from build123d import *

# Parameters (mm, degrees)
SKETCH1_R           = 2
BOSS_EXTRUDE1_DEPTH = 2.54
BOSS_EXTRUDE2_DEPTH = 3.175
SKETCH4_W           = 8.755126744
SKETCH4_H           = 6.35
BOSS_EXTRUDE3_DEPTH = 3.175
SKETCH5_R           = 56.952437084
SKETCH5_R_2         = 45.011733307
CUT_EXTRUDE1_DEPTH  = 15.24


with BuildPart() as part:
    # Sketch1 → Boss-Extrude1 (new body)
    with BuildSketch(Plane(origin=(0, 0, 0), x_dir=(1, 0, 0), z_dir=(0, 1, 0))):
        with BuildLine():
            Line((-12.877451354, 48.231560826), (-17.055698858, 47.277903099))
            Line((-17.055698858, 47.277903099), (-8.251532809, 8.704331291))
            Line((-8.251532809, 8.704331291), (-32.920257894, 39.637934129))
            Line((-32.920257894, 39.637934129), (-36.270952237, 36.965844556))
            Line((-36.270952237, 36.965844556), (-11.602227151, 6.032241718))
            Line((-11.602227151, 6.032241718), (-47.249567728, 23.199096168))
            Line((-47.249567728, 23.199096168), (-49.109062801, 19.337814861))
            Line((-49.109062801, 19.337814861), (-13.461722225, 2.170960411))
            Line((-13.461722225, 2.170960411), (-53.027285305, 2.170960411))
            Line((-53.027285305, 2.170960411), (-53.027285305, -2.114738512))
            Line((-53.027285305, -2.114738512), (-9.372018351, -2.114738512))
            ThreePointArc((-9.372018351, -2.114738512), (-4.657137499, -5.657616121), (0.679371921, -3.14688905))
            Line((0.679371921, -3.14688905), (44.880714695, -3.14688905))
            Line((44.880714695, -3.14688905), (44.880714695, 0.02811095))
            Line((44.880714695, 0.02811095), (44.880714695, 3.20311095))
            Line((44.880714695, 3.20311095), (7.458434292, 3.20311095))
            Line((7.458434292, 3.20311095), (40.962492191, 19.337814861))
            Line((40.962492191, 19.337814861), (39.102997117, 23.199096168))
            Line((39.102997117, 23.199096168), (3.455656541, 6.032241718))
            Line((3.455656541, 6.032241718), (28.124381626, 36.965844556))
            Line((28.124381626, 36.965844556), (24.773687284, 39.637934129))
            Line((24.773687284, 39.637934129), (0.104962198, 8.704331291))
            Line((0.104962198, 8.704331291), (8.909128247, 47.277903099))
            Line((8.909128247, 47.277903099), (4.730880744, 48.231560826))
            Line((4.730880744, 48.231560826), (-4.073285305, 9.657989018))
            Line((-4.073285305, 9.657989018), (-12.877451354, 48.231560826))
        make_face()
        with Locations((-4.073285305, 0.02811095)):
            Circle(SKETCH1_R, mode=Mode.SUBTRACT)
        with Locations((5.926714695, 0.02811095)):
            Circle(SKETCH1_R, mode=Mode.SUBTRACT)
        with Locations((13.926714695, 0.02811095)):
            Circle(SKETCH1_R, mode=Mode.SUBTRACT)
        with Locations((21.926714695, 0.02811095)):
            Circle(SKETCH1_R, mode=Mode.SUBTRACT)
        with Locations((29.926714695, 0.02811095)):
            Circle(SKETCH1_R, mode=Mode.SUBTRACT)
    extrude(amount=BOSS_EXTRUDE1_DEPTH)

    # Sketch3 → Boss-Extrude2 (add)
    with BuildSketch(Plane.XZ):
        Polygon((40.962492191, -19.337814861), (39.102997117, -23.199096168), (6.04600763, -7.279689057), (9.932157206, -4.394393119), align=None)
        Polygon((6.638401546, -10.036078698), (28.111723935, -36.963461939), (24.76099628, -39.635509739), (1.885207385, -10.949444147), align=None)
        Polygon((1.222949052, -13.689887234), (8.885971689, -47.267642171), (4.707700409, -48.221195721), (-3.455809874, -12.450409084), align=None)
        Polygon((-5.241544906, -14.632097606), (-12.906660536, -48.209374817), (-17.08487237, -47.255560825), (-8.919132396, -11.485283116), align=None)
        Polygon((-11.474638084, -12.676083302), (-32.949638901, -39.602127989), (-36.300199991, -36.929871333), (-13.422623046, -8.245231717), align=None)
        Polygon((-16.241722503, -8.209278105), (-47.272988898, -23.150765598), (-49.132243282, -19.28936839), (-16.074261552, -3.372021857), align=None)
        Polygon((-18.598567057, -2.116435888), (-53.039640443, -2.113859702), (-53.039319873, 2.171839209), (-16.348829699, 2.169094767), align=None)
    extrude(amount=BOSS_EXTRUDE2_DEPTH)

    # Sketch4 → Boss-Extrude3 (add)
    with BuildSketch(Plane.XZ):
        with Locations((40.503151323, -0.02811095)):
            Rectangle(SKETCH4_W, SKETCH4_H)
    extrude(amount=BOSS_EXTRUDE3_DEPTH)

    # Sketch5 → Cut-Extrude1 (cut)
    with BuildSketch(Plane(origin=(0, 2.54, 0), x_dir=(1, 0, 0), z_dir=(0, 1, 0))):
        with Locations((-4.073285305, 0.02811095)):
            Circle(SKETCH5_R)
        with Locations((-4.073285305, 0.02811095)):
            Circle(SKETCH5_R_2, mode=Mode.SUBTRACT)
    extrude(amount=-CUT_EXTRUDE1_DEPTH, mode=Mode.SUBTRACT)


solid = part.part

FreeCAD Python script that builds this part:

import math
import FreeCAD as App
import Part
import Sketcher
Q = App.Units.Quantity

doc = App.newDocument("Part")
body = doc.addObject("PartDesign::Body", "Body")

# Sketch on XZ plane
sketch1 = body.newObject("Sketcher::SketchObject", "Sketch")
sketch1.AttachmentSupport = (doc.getObject("XZ_Plane"), [""])
sketch1.MapMode = "FlatFace"
sketch1.addGeometry(Part.LineSegment(App.Vector(-12.877451, -48.231561, 0), App.Vector(-17.055699, -47.277903, 0)), False)
sketch1.addGeometry(Part.LineSegment(App.Vector(-17.055699, -47.277903, 0), App.Vector(-8.251533, -8.704331, 0)), False)
sketch1.addGeometry(Part.LineSegment(App.Vector(-8.251533, -8.704331, 0), App.Vector(-32.920258, -39.637934, 0)), False)
sketch1.addGeometry(Part.LineSegment(App.Vector(-32.920258, -39.637934, 0), App.Vector(-36.270952, -36.965845, 0)), False)
sketch1.addGeometry(Part.LineSegment(App.Vector(-36.270952, -36.965845, 0), App.Vector(-11.602227, -6.032242, 0)), False)
sketch1.addGeometry(Part.LineSegment(App.Vector(-11.602227, -6.032242, 0), App.Vector(-47.249568, -23.199096, 0)), False)
sketch1.addGeometry(Part.LineSegment(App.Vector(-47.249568, -23.199096, 0), App.Vector(-49.109063, -19.337815, 0)), False)
sketch1.addGeometry(Part.LineSegment(App.Vector(-49.109063, -19.337815, 0), App.Vector(-13.461722, -2.17096, 0)), False)
sketch1.addGeometry(Part.LineSegment(App.Vector(-13.461722, -2.17096, 0), App.Vector(-53.027285, -2.17096, 0)), False)
sketch1.addGeometry(Part.LineSegment(App.Vector(-53.027285, -2.17096, 0), App.Vector(-53.027285, 2.114739, 0)), False)
sketch1.addGeometry(Part.LineSegment(App.Vector(-53.027285, 2.114739, 0), App.Vector(-9.372018, 2.114739, 0)), False)
sketch1.addGeometry(Part.ArcOfCircle(Part.Circle(App.Vector(-4.073285, -0.028111, 0), App.Vector(0, 0, 1), 5.715626), math.radians(33.744799), math.radians(157.981203)), False)
sketch1.addGeometry(Part.LineSegment(App.Vector(0.679372, 3.146889, 0), App.Vector(44.880715, 3.146889, 0)), False)
sketch1.addGeometry(Part.LineSegment(App.Vector(44.880715, 3.146889, 0), App.Vector(44.880715, -3.203111, 0)), False)
sketch1.addGeometry(Part.LineSegment(App.Vector(44.880715, -3.203111, 0), App.Vector(7.458434, -3.203111, 0)), False)
sketch1.addGeometry(Part.LineSegment(App.Vector(7.458434, -3.203111, 0), App.Vector(40.962492, -19.337815, 0)), False)
sketch1.addGeometry(Part.LineSegment(App.Vector(40.962492, -19.337815, 0), App.Vector(39.102997, -23.199096, 0)), False)
sketch1.addGeometry(Part.LineSegment(App.Vector(39.102997, -23.199096, 0), App.Vector(3.455657, -6.032242, 0)), False)
sketch1.addGeometry(Part.LineSegment(App.Vector(3.455657, -6.032242, 0), App.Vector(28.124382, -36.965845, 0)), False)
sketch1.addGeometry(Part.LineSegment(App.Vector(28.124382, -36.965845, 0), App.Vector(24.773687, -39.637934, 0)), False)
sketch1.addGeometry(Part.LineSegment(App.Vector(24.773687, -39.637934, 0), App.Vector(0.104962, -8.704331, 0)), False)
sketch1.addGeometry(Part.LineSegment(App.Vector(0.104962, -8.704331, 0), App.Vector(8.909128, -47.277903, 0)), False)
sketch1.addGeometry(Part.LineSegment(App.Vector(8.909128, -47.277903, 0), App.Vector(4.730881, -48.231561, 0)), False)
sketch1.addGeometry(Part.LineSegment(App.Vector(4.730881, -48.231561, 0), App.Vector(-4.073285, -9.657989, 0)), False)
sketch1.addGeometry(Part.LineSegment(App.Vector(-4.073285, -9.657989, 0), App.Vector(-12.877451, -48.231561, 0)), False)
sketch1.addGeometry(Part.Circle(App.Vector(-4.073285, -0.028111, 0), App.Vector(0, 0, 1), 2), False)
sketch1.addGeometry(Part.Circle(App.Vector(5.926715, -0.028111, 0), App.Vector(0, 0, 1), 2), False)
sketch1.addGeometry(Part.Circle(App.Vector(13.926715, -0.028111, 0), App.Vector(0, 0, 1), 2), False)
sketch1.addGeometry(Part.Circle(App.Vector(21.926715, -0.028111, 0), App.Vector(0, 0, 1), 2), False)
sketch1.addGeometry(Part.Circle(App.Vector(29.926715, -0.028111, 0), App.Vector(0, 0, 1), 2), False)
sketch1.addConstraint(Sketcher.Constraint("Coincident", 0, 2, 1, 1))
sketch1.addConstraint(Sketcher.Constraint("Coincident", 1, 2, 2, 1))
sketch1.addConstraint(Sketcher.Constraint("Coincident", 2, 2, 3, 1))
sketch1.addConstraint(Sketcher.Constraint("Coincident", 3, 2, 4, 1))
sketch1.addConstraint(Sketcher.Constraint("Coincident", 4, 2, 5, 1))
sketch1.addConstraint(Sketcher.Constraint("Coincident", 5, 2, 6, 1))
sketch1.addConstraint(Sketcher.Constraint("Coincident", 6, 2, 7, 1))
sketch1.addConstraint(Sketcher.Constraint("Coincident", 7, 2, 8, 1))
sketch1.addConstraint(Sketcher.Constraint("Coincident", 8, 2, 9, 1))
sketch1.addConstraint(Sketcher.Constraint("Coincident", 9, 2, 10, 1))
sketch1.addConstraint(Sketcher.Constraint("Coincident", 10, 2, 11, 2))
sketch1.addConstraint(Sketcher.Constraint("Coincident", 11, 1, 12, 1))
sketch1.addConstraint(Sketcher.Constraint("Coincident", 12, 2, 13, 1))
sketch1.addConstraint(Sketcher.Constraint("Coincident", 13, 2, 14, 1))
sketch1.addConstraint(Sketcher.Constraint("Coincident", 14, 2, 15, 1))
sketch1.addConstraint(Sketcher.Constraint("Coincident", 15, 2, 16, 1))
sketch1.addConstraint(Sketcher.Constraint("Coincident", 16, 2, 17, 1))
sketch1.addConstraint(Sketcher.Constraint("Coincident", 17, 2, 18, 1))
sketch1.addConstraint(Sketcher.Constraint("Coincident", 18, 2, 19, 1))
sketch1.addConstraint(Sketcher.Constraint("Coincident", 19, 2, 20, 1))
sketch1.addConstraint(Sketcher.Constraint("Coincident", 20, 2, 21, 1))
sketch1.addConstraint(Sketcher.Constraint("Coincident", 21, 2, 22, 1))
sketch1.addConstraint(Sketcher.Constraint("Coincident", 22, 2, 23, 1))
sketch1.addConstraint(Sketcher.Constraint("Coincident", 23, 2, 24, 1))
sketch1.addConstraint(Sketcher.Constraint("Coincident", 24, 2, 0, 1))
sketch1.addConstraint(Sketcher.Constraint("Horizontal", 8))
sketch1.addConstraint(Sketcher.Constraint("Vertical", 9))
sketch1.addConstraint(Sketcher.Constraint("Horizontal", 10))
sketch1.addConstraint(Sketcher.Constraint("Horizontal", 12))
sketch1.addConstraint(Sketcher.Constraint("Vertical", 13))
sketch1.addConstraint(Sketcher.Constraint("Horizontal", 14))
sketch1.addConstraint(Sketcher.Constraint("Coincident", 25, 3, 11, 3))
sketch1.addConstraint(Sketcher.Constraint("Equal", 25, 26))
sketch1.addConstraint(Sketcher.Constraint("Equal", 26, 27))
sketch1.addConstraint(Sketcher.Constraint("Equal", 27, 28))
sketch1.addConstraint(Sketcher.Constraint("Equal", 28, 29))
sketch1.addConstraint(Sketcher.Constraint("Perpendicular", 0, 1))
sketch1.addConstraint(Sketcher.Constraint("Perpendicular", 2, 3))
sketch1.addConstraint(Sketcher.Constraint("Perpendicular", 3, 4))
sketch1.addConstraint(Sketcher.Constraint("Perpendicular", 5, 6))
sketch1.addConstraint(Sketcher.Constraint("Perpendicular", 6, 7))
sketch1.addConstraint(Sketcher.Constraint("Perpendicular", 15, 16))
sketch1.addConstraint(Sketcher.Constraint("Perpendicular", 16, 17))
sketch1.addConstraint(Sketcher.Constraint("Perpendicular", 18, 19))
sketch1.addConstraint(Sketcher.Constraint("Perpendicular", 19, 20))
sketch1.addConstraint(Sketcher.Constraint("Perpendicular", 21, 22))
sketch1.addConstraint(Sketcher.Constraint("Perpendicular", 22, 23))
sketch1.addConstraint(Sketcher.Constraint("Parallel", 1, 24))
sketch1.addConstraint(Sketcher.Constraint("Horizontal", 25, 3, 26, 3))
sketch1.addConstraint(Sketcher.Constraint("Horizontal", 26, 3, 27, 3))
sketch1.addConstraint(Sketcher.Constraint("Horizontal", 27, 3, 28, 3))
sketch1.addConstraint(Sketcher.Constraint("Horizontal", 28, 3, 29, 3))
sketch1.addConstraint(Sketcher.Constraint("Horizontal", 6, 2, 15, 2))
sketch1.addConstraint(Sketcher.Constraint("Horizontal", 5, 2, 16, 2))
sketch1.addConstraint(Sketcher.Constraint("Horizontal", 4, 2, 17, 2))
sketch1.addConstraint(Sketcher.Constraint("Horizontal", 3, 2, 18, 2))
sketch1.addConstraint(Sketcher.Constraint("Horizontal", 2, 2, 19, 2))
sketch1.addConstraint(Sketcher.Constraint("Horizontal", 1, 2, 20, 2))
sketch1.addConstraint(Sketcher.Constraint("Horizontal", 0, 2, 21, 2))
sketch1.addConstraint(Sketcher.Constraint("Horizontal", 22, 2, 24, 2))
sketch1.addConstraint(Sketcher.Constraint("Vertical", 25, 3, 23, 2))
sketch1.addConstraint(Sketcher.Constraint("Equal", 1, 2))
sketch1.addConstraint(Sketcher.Constraint("Equal", 0, 3))
sketch1.addConstraint(Sketcher.Constraint("Equal", 2, 4))
sketch1.addConstraint(Sketcher.Constraint("Equal", 4, 5))
sketch1.addConstraint(Sketcher.Constraint("Equal", 3, 6))
sketch1.addConstraint(Sketcher.Constraint("Equal", 5, 7))
sketch1.addConstraint(Sketcher.Constraint("Equal", 6, 16))
sketch1.addConstraint(Sketcher.Constraint("Equal", 17, 18))
sketch1.addConstraint(Sketcher.Constraint("Equal", 20, 21))
sketch1.addConstraint(Sketcher.Constraint("Equal", 21, 23))
sketch1.addConstraint(Sketcher.Constraint("DistanceY", 13, 2, 13, 1, Q("0.25 in")))
sketch1.addConstraint(Sketcher.Constraint("Diameter", 25, 4.0))
sketch1.addConstraint(Sketcher.Constraint("DistanceY", 11, 3, 11, 1, Q("0.125 in")))
sketch1.addConstraint(Sketcher.Constraint("DistanceY", 9, 1, 9, 2, 4.285699))
sketch1.addConstraint(Sketcher.Constraint("Radius", 11, 5.715626))
sketch1.addConstraint(Sketcher.Constraint("Distance", 0, 4.285699))
sketch1.addConstraint(Sketcher.Constraint("Distance", 15, 37.186699))
sketch1.addConstraint(Sketcher.Constraint("DistanceX", 14, 2, 14, 1, 37.42228))
sketch1.addConstraint(Sketcher.Constraint("DistanceX", 0, 2, -1, 1, 17.055699))
sketch1.addConstraint(Sketcher.Constraint("DistanceX", 11, 3, 26, 3, 10.0))
sketch1.addConstraint(Sketcher.Constraint("DistanceX", 26, 3, 27, 3, 8.0))
sketch1.addConstraint(Sketcher.Constraint("DistanceX", 27, 3, 28, 3, 8.0))
sketch1.addConstraint(Sketcher.Constraint("DistanceX", 28, 3, 29, 3, 8.0))
sketch1.addConstraint(Sketcher.Constraint("DistanceX", 29, 3, 12, 2, 14.954))
sketch1.addConstraint(Sketcher.Constraint("DistanceX", 22, 2, 18, 2, 23.393501))
sketch1.addConstraint(Sketcher.Constraint("DistanceX", 8, 2, 8, 1, 39.565563))
sketch1.addConstraint(Sketcher.Constraint("DistanceX", 10, 1, 10, 2, 43.655267))
sketch1.addConstraint(Sketcher.Constraint("DistanceY", 11, 3, -1, 1, 0.028111))
sketch1.addConstraint(Sketcher.Constraint("DistanceY", 4, 2, -1, 1, 6.032242))
pad1 = body.newObject("PartDesign::Pad", "Pad")
pad1.Profile = sketch1
pad1.Length = Q("0.1 in")
pad1.Reversed = True

# Sketch on XZ plane
sketch2 = body.newObject("Sketcher::SketchObject", "Sketch001")
sketch2.AttachmentSupport = (doc.getObject("XZ_Plane"), [""])
sketch2.MapMode = "FlatFace"
sketch2.addGeometry(Part.LineSegment(App.Vector(39.102997, -23.199096, 0), App.Vector(40.962492, -19.337815, 0)), False)
sketch2.addGeometry(Part.LineSegment(App.Vector(40.962492, -19.337815, 0), App.Vector(9.932157, -4.394393, 0)), False)
sketch2.addGeometry(Part.LineSegment(App.Vector(9.932157, -4.394393, 0), App.Vector(6.046008, -7.279689, 0)), False)
sketch2.addGeometry(Part.LineSegment(App.Vector(6.046008, -7.279689, 0), App.Vector(39.102997, -23.199096, 0)), False)
sketch2.addGeometry(Part.LineSegment(App.Vector(28.111724, -36.963462, 0), App.Vector(6.638402, -10.036079, 0)), False)
sketch2.addGeometry(Part.LineSegment(App.Vector(6.638402, -10.036079, 0), App.Vector(1.885207, -10.949444, 0)), False)
sketch2.addGeometry(Part.LineSegment(App.Vector(1.885207, -10.949444, 0), App.Vector(24.760996, -39.63551, 0)), False)
sketch2.addGeometry(Part.LineSegment(App.Vector(24.760996, -39.63551, 0), App.Vector(28.111724, -36.963462, 0)), False)
sketch2.addGeometry(Part.LineSegment(App.Vector(8.885972, -47.267642, 0), App.Vector(1.222949, -13.689887, 0)), False)
sketch2.addGeometry(Part.LineSegment(App.Vector(1.222949, -13.689887, 0), App.Vector(-3.45581, -12.450409, 0)), False)
sketch2.addGeometry(Part.LineSegment(App.Vector(-3.45581, -12.450409, 0), App.Vector(4.7077, -48.221196, 0)), False)
sketch2.addGeometry(Part.LineSegment(App.Vector(4.7077, -48.221196, 0), App.Vector(8.885972, -47.267642, 0)), False)
sketch2.addGeometry(Part.LineSegment(App.Vector(-12.906661, -48.209375, 0), App.Vector(-5.241545, -14.632098, 0)), False)
sketch2.addGeometry(Part.LineSegment(App.Vector(-5.241545, -14.632098, 0), App.Vector(-8.919132, -11.485283, 0)), False)
sketch2.addGeometry(Part.LineSegment(App.Vector(-8.919132, -11.485283, 0), App.Vector(-17.084872, -47.255561, 0)), False)
sketch2.addGeometry(Part.LineSegment(App.Vector(-17.084872, -47.255561, 0), App.Vector(-12.906661, -48.209375, 0)), False)
sketch2.addGeometry(Part.LineSegment(App.Vector(-32.949639, -39.602128, 0), App.Vector(-11.474638, -12.676083, 0)), False)
sketch2.addGeometry(Part.LineSegment(App.Vector(-11.474638, -12.676083, 0), App.Vector(-13.422623, -8.245232, 0)), False)
sketch2.addGeometry(Part.LineSegment(App.Vector(-13.422623, -8.245232, 0), App.Vector(-36.3002, -36.929871, 0)), False)
sketch2.addGeometry(Part.LineSegment(App.Vector(-36.3002, -36.929871, 0), App.Vector(-32.949639, -39.602128, 0)), False)
sketch2.addGeometry(Part.LineSegment(App.Vector(-47.272989, -23.150766, 0), App.Vector(-16.241723, -8.209278, 0)), False)
sketch2.addGeometry(Part.LineSegment(App.Vector(-16.241723, -8.209278, 0), App.Vector(-16.074262, -3.372022, 0)), False)
sketch2.addGeometry(Part.LineSegment(App.Vector(-16.074262, -3.372022, 0), App.Vector(-49.132243, -19.289368, 0)), False)
sketch2.addGeometry(Part.LineSegment(App.Vector(-49.132243, -19.289368, 0), App.Vector(-47.272989, -23.150766, 0)), False)
sketch2.addGeometry(Part.LineSegment(App.Vector(-53.03964, -2.11386, 0), App.Vector(-18.598567, -2.116436, 0)), False)
sketch2.addGeometry(Part.LineSegment(App.Vector(-18.598567, -2.116436, 0), App.Vector(-16.34883, 2.169095, 0)), False)
sketch2.addGeometry(Part.LineSegment(App.Vector(-16.34883, 2.169095, 0), App.Vector(-53.03932, 2.171839, 0)), False)
sketch2.addGeometry(Part.LineSegment(App.Vector(-53.03932, 2.171839, 0), App.Vector(-53.03964, -2.11386, 0)), False)
sketch2.addConstraint(Sketcher.Constraint("Coincident", 0, 2, 1, 1))
sketch2.addConstraint(Sketcher.Constraint("Coincident", 1, 2, 2, 1))
sketch2.addConstraint(Sketcher.Constraint("Coincident", 2, 2, 3, 1))
sketch2.addConstraint(Sketcher.Constraint("Coincident", 3, 2, 0, 1))
sketch2.addConstraint(Sketcher.Constraint("Coincident", 4, 2, 5, 1))
sketch2.addConstraint(Sketcher.Constraint("Coincident", 5, 2, 6, 1))
sketch2.addConstraint(Sketcher.Constraint("Coincident", 6, 2, 7, 1))
sketch2.addConstraint(Sketcher.Constraint("Coincident", 7, 2, 4, 1))
sketch2.addConstraint(Sketcher.Constraint("Coincident", 8, 2, 9, 1))
sketch2.addConstraint(Sketcher.Constraint("Coincident", 9, 2, 10, 1))
sketch2.addConstraint(Sketcher.Constraint("Coincident", 10, 2, 11, 1))
sketch2.addConstraint(Sketcher.Constraint("Coincident", 11, 2, 8, 1))
sketch2.addConstraint(Sketcher.Constraint("Coincident", 12, 2, 13, 1))
sketch2.addConstraint(Sketcher.Constraint("Coincident", 13, 2, 14, 1))
sketch2.addConstraint(Sketcher.Constraint("Coincident", 14, 2, 15, 1))
sketch2.addConstraint(Sketcher.Constraint("Coincident", 15, 2, 12, 1))
sketch2.addConstraint(Sketcher.Constraint("Coincident", 16, 2, 17, 1))
sketch2.addConstraint(Sketcher.Constraint("Coincident", 17, 2, 18, 1))
sketch2.addConstraint(Sketcher.Constraint("Coincident", 18, 2, 19, 1))
sketch2.addConstraint(Sketcher.Constraint("Coincident", 19, 2, 16, 1))
sketch2.addConstraint(Sketcher.Constraint("Coincident", 20, 2, 21, 1))
sketch2.addConstraint(Sketcher.Constraint("Coincident", 21, 2, 22, 1))
sketch2.addConstraint(Sketcher.Constraint("Coincident", 22, 2, 23, 1))
sketch2.addConstraint(Sketcher.Constraint("Coincident", 23, 2, 20, 1))
sketch2.addConstraint(Sketcher.Constraint("Coincident", 24, 2, 25, 1))
sketch2.addConstraint(Sketcher.Constraint("Coincident", 25, 2, 26, 1))
sketch2.addConstraint(Sketcher.Constraint("Coincident", 26, 2, 27, 1))
sketch2.addConstraint(Sketcher.Constraint("Coincident", 27, 2, 24, 1))
sketch2.addConstraint(Sketcher.Constraint("Perpendicular", 0, 1))
sketch2.addConstraint(Sketcher.Constraint("Parallel", 1, 3))
sketch2.addConstraint(Sketcher.Constraint("Parallel", 4, 6))
sketch2.addConstraint(Sketcher.Constraint("Perpendicular", 6, 7))
sketch2.addConstraint(Sketcher.Constraint("Parallel", 8, 10))
sketch2.addConstraint(Sketcher.Constraint("Perpendicular", 10, 11))
sketch2.addConstraint(Sketcher.Constraint("Parallel", 12, 14))
sketch2.addConstraint(Sketcher.Constraint("Perpendicular", 14, 15))
sketch2.addConstraint(Sketcher.Constraint("Parallel", 16, 18))
sketch2.addConstraint(Sketcher.Constraint("Perpendicular", 18, 19))
sketch2.addConstraint(Sketcher.Constraint("Parallel", 20, 22))
sketch2.addConstraint(Sketcher.Constraint("Perpendicular", 22, 23))
sketch2.addConstraint(Sketcher.Constraint("Parallel", 24, 26))
sketch2.addConstraint(Sketcher.Constraint("Perpendicular", 26, 27))
sketch2.addConstraint(Sketcher.Constraint("Equal", 1, 4))
sketch2.addConstraint(Sketcher.Constraint("Equal", 2, 5))
sketch2.addConstraint(Sketcher.Constraint("Equal", 3, 6))
sketch2.addConstraint(Sketcher.Constraint("Equal", 4, 8))
sketch2.addConstraint(Sketcher.Constraint("Equal", 5, 9))
sketch2.addConstraint(Sketcher.Constraint("Equal", 6, 10))
sketch2.addConstraint(Sketcher.Constraint("Equal", 8, 12))
sketch2.addConstraint(Sketcher.Constraint("Equal", 9, 13))
sketch2.addConstraint(Sketcher.Constraint("Equal", 10, 14))
sketch2.addConstraint(Sketcher.Constraint("Equal", 12, 16))
sketch2.addConstraint(Sketcher.Constraint("Equal", 13, 17))
sketch2.addConstraint(Sketcher.Constraint("Equal", 14, 18))
sketch2.addConstraint(Sketcher.Constraint("Equal", 16, 20))
sketch2.addConstraint(Sketcher.Constraint("Equal", 17, 21))
sketch2.addConstraint(Sketcher.Constraint("Equal", 18, 22))
sketch2.addConstraint(Sketcher.Constraint("Equal", 20, 24))
sketch2.addConstraint(Sketcher.Constraint("Equal", 21, 25))
sketch2.addConstraint(Sketcher.Constraint("Equal", 22, 26))
sketch2.addConstraint(Sketcher.Constraint("DistanceY", 20, 2, -1, 1, Q("0.3231999 in")))
sketch2.addConstraint(Sketcher.Constraint("DistanceX", 10, 2, 6, 2, Q("0.7894998 in")))
sketch2.addConstraint(Sketcher.Constraint("Distance", 0, 4.285699))
sketch2.addConstraint(Sketcher.Constraint("DistanceX", -1, 1, 4, 2, 6.638402))
sketch2.addConstraint(Sketcher.Constraint("DistanceX", -1, 1, 10, 2, 4.7077))
sketch2.addConstraint(Sketcher.Constraint("DistanceX", 18, 2, -1, 1, 36.3002))
sketch2.addConstraint(Sketcher.Constraint("DistanceX", 5, 2, 2, 2, 4.1608))
sketch2.addConstraint(Sketcher.Constraint("DistanceX", 6, 2, 3, 2, 14.342001))
sketch2.addConstraint(Sketcher.Constraint("DistanceY", 8, 2, 2, 2, 6.410198))
sketch2.addConstraint(Sketcher.Constraint("DistanceY", 16, 2, 13, 2, 1.1908))
sketch2.addConstraint(Sketcher.Constraint("DistanceX", 19, 2, 16, 2, 21.475001))
sketch2.addConstraint(Sketcher.Constraint("DistanceX", 20, 2, 17, 2, 2.819099))
sketch2.addConstraint(Sketcher.Constraint("Distance", 3, 36.69049))
sketch2.addConstraint(Sketcher.Constraint("DistanceY", 2, 2, -1, 1, 7.279689))
sketch2.addConstraint(Sketcher.Constraint("DistanceY", 4, 2, -1, 1, 10.036079))
sketch2.addConstraint(Sketcher.Constraint("DistanceY", 6, 2, -1, 1, 39.63551))
sketch2.addConstraint(Sketcher.Constraint("DistanceX", -1, 1, 8, 2, 1.222949))
sketch2.addConstraint(Sketcher.Constraint("DistanceY", 14, 2, -1, 1, 47.255561))
sketch2.addConstraint(Sketcher.Constraint("DistanceX", 15, 2, -1, 1, 12.906661))
sketch2.addConstraint(Sketcher.Constraint("DistanceY", 17, 2, -1, 1, 8.245232))
sketch2.addConstraint(Sketcher.Constraint("DistanceX", 21, 2, -1, 1, 16.074262))
sketch2.addConstraint(Sketcher.Constraint("DistanceX", 25, 2, -1, 1, 16.34883))
sketch2.addConstraint(Sketcher.Constraint("DistanceY", -1, 1, 26, 2, 2.171839))
sketch2.addConstraint(Sketcher.Constraint("DistanceX", 27, 2, -1, 1, 53.03964))
pad2 = body.newObject("PartDesign::Pad", "Pad001")
pad2.Profile = sketch2
pad2.Length = Q("0.125 in")

# Sketch on XZ plane
sketch3 = body.newObject("Sketcher::SketchObject", "Sketch002")
sketch3.AttachmentSupport = (doc.getObject("XZ_Plane"), [""])
sketch3.MapMode = "FlatFace"
sketch3.addGeometry(Part.LineSegment(App.Vector(36.125588, 3.146889, 0), App.Vector(36.125588, -3.203111, 0)), False)
sketch3.addGeometry(Part.LineSegment(App.Vector(36.125588, -3.203111, 0), App.Vector(44.880715, -3.203111, 0)), False)
sketch3.addGeometry(Part.LineSegment(App.Vector(44.880715, -3.203111, 0), App.Vector(44.880715, 3.146889, 0)), False)
sketch3.addGeometry(Part.LineSegment(App.Vector(44.880715, 3.146889, 0), App.Vector(36.125588, 3.146889, 0)), False)
sketch3.addConstraint(Sketcher.Constraint("Coincident", 0, 2, 1, 1))
sketch3.addConstraint(Sketcher.Constraint("Coincident", 1, 2, 2, 1))
sketch3.addConstraint(Sketcher.Constraint("Coincident", 2, 2, 3, 1))
sketch3.addConstraint(Sketcher.Constraint("Coincident", 3, 2, 0, 1))
sketch3.addConstraint(Sketcher.Constraint("Vertical", 0))
sketch3.addConstraint(Sketcher.Constraint("Horizontal", 1))
sketch3.addConstraint(Sketcher.Constraint("Vertical", 2))
sketch3.addConstraint(Sketcher.Constraint("Horizontal", 3))
sketch3.addConstraint(Sketcher.Constraint("DistanceY", 0, 2, 0, 1, Q("0.25 in")))
sketch3.addConstraint(Sketcher.Constraint("DistanceX", 1, 1, 1, 2, 8.755127))
sketch3.addConstraint(Sketcher.Constraint("DistanceY", 0, 2, -1, 1, 3.203111))
sketch3.addConstraint(Sketcher.Constraint("DistanceX", -1, 1, 0, 2, 36.125588))
pad3 = body.newObject("PartDesign::Pad", "Pad002")
pad3.Profile = sketch3
pad3.Length = Q("0.125 in")

# Sketch on XZ plane
sketch4 = body.newObject("Sketcher::SketchObject", "Sketch003")
sketch4.AttachmentSupport = (doc.getObject("XZ_Plane"), [""])
sketch4.MapMode = "FlatFace"
sketch4.AttachmentOffset = App.Placement(App.Vector(0, 0, -0.1 * 25.4), App.Rotation())
sketch4.addGeometry(Part.Circle(App.Vector(-4.073285, -0.028111, 0), App.Vector(0, 0, 1), 56.952437), False)
sketch4.addGeometry(Part.Circle(App.Vector(-4.073285, -0.028111, 0), App.Vector(0, 0, 1), 45.011733), False)
sketch4.addConstraint(Sketcher.Constraint("Coincident", 1, 3, 0, 3))
sketch4.addConstraint(Sketcher.Constraint("Diameter", 0, 113.904874))
sketch4.addConstraint(Sketcher.Constraint("Diameter", 1, 90.023467))
sketch4.addConstraint(Sketcher.Constraint("DistanceY", 0, 3, -1, 1, 0.028111))
sketch4.addConstraint(Sketcher.Constraint("DistanceX", 0, 3, -1, 1, 4.073285))
pocket1 = body.newObject("PartDesign::Pocket", "Pocket")
pocket1.Profile = sketch4
pocket1.Length = Q("0.6 in")
pocket1.Reversed = True

doc.recompute()
